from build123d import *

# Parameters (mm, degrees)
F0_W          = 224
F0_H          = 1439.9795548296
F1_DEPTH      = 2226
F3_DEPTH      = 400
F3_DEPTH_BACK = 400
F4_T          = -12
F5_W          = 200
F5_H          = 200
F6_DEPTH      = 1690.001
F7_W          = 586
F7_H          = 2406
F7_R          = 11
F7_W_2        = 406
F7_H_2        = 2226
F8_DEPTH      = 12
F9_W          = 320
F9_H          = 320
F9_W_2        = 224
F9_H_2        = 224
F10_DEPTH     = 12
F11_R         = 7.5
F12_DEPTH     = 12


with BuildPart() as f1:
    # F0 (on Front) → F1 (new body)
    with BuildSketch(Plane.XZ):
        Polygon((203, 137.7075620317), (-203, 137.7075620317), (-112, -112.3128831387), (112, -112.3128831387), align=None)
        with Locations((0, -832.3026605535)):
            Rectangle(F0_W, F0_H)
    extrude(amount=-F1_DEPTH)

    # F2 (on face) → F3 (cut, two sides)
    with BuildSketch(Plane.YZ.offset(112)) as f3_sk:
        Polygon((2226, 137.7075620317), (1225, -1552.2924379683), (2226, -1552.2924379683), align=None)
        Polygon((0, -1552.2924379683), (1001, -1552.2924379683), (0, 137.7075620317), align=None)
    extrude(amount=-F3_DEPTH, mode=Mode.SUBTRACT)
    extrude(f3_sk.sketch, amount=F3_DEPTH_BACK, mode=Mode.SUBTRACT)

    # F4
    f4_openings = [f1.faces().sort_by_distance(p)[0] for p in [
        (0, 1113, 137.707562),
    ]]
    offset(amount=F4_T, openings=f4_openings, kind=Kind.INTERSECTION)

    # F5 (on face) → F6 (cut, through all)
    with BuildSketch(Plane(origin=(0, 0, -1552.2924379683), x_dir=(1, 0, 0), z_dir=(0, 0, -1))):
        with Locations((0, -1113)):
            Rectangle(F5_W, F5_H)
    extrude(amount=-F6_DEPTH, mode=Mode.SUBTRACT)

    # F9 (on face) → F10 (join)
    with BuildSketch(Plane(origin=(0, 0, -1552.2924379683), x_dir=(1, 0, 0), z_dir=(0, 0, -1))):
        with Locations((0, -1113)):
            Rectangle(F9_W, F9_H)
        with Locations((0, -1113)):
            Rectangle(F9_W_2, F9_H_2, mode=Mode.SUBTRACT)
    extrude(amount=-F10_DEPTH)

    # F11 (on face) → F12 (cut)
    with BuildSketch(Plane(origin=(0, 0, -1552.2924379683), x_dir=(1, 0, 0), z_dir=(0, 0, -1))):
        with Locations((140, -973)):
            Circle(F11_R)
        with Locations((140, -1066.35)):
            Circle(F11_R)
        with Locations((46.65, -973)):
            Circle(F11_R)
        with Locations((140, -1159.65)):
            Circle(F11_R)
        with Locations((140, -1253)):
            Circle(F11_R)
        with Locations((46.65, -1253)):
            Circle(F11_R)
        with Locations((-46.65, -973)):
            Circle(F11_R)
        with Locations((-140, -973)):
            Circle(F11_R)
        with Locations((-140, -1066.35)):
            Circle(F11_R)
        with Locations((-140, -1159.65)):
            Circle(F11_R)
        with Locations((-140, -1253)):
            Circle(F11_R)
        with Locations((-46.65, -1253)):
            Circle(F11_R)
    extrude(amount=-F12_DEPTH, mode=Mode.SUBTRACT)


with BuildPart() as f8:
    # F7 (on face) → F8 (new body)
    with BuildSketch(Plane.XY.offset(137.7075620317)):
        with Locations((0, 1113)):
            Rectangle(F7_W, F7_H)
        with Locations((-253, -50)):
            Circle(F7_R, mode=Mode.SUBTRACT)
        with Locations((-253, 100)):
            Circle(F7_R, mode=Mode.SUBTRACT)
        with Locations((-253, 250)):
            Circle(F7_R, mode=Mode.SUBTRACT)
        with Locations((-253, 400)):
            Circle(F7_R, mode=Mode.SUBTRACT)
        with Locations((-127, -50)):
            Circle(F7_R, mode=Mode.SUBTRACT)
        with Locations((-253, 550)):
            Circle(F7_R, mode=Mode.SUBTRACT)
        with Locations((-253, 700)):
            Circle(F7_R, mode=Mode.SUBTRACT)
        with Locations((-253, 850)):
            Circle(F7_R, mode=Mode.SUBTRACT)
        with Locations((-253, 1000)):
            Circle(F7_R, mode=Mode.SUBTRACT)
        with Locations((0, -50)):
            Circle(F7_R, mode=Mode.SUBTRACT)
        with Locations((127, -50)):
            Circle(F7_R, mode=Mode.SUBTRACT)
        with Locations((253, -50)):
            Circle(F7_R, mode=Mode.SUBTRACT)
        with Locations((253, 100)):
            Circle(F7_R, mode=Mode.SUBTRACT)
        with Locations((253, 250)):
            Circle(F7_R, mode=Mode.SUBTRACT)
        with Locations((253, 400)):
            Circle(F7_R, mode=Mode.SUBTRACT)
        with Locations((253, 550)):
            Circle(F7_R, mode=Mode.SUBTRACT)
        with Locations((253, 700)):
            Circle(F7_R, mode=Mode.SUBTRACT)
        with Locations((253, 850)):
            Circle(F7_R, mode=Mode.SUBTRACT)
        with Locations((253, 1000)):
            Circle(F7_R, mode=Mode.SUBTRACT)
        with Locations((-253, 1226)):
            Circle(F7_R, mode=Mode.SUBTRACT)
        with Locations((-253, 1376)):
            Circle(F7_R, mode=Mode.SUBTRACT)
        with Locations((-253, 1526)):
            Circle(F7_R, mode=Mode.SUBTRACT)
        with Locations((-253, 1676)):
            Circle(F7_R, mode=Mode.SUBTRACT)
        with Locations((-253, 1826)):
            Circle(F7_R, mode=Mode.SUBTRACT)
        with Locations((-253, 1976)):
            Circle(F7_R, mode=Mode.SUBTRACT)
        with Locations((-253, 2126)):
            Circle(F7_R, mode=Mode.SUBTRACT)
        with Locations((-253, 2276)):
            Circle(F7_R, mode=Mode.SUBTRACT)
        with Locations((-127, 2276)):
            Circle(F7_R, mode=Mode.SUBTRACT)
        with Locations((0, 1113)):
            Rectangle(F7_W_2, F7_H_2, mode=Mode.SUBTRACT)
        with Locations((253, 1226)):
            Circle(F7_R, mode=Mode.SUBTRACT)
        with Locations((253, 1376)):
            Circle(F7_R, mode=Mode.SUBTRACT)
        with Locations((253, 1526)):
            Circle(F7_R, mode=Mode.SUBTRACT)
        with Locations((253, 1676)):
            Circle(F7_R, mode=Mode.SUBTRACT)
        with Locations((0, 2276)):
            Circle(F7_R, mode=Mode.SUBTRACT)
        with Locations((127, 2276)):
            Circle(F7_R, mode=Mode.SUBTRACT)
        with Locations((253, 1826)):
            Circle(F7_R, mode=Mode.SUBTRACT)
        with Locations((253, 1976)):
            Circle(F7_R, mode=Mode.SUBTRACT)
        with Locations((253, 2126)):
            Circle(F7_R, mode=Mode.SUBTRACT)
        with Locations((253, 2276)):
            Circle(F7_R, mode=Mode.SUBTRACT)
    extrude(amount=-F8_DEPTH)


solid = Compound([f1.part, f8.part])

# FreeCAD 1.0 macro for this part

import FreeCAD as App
import Part
import Sketcher
from FreeCAD import Vector
Q = App.Units.Quantity


def faces_at(feature, points):
    """Names of the faces that lie closest to the given points."""
    faces = feature.Shape.Faces
    near = lambda p: min(range(len(faces)), key=lambda i: faces[i].distToShape(Part.Vertex(*p))[0])
    return sorted({f"Face{near(p) + 1}" for p in points})

doc = App.newDocument("Part")
body = doc.addObject("PartDesign::Body", "Body")

# Sketch on XZ plane
sketch1 = doc.addObject("Sketcher::SketchObject", "Sketch")
body.addObject(sketch1)
sketch1.AttachmentSupport = (doc.XZ_Plane, [""])
sketch1.MapMode = "FlatFace"
sketch1.addGeometry(Part.LineSegment(Vector(203, 138, 0), Vector(-203, 138, 0)), False)
sketch1.addGeometry(Part.LineSegment(Vector(-203, 138, 0), Vector(-112, -112, 0)), False)
sketch1.addGeometry(Part.LineSegment(Vector(-112, -112, 0), Vector(-112, -1552, 0)), False)
sketch1.addGeometry(Part.LineSegment(Vector(-112, -1552, 0), Vector(112, -1552, 0)), False)
sketch1.addGeometry(Part.LineSegment(Vector(112, -1552, 0), Vector(112, -112, 0)), False)
sketch1.addGeometry(Part.LineSegment(Vector(112, -112, 0), Vector(203, 138, 0)), False)
sketch1.addConstraint(Sketcher.Constraint("Coincident", 0, 2, 1, 1))
sketch1.addConstraint(Sketcher.Constraint("Coincident", 1, 2, 2, 1))
sketch1.addConstraint(Sketcher.Constraint("Coincident", 2, 2, 3, 1))
sketch1.addConstraint(Sketcher.Constraint("Coincident", 3, 2, 4, 1))
sketch1.addConstraint(Sketcher.Constraint("Coincident", 4, 2, 5, 1))
sketch1.addConstraint(Sketcher.Constraint("Coincident", 5, 2, 0, 1))
sketch1.addConstraint(Sketcher.Constraint("Horizontal", 0))
sketch1.addConstraint(Sketcher.Constraint("Vertical", 2))
sketch1.addConstraint(Sketcher.Constraint("Horizontal", 3))
sketch1.addConstraint(Sketcher.Constraint("Vertical", 4))
sketch1.addConstraint(Sketcher.Constraint("Symmetric", 1, 2, 4, 2, -2))
sketch1.addConstraint(Sketcher.Constraint("Equal", 1, 5))
sketch1.addConstraint(Sketcher.Constraint("DistanceX", 0, 2, 0, 1, 406.0))
sketch1.addConstraint(Sketcher.Constraint("DistanceX", 3, 1, 3, 2, 224.0))
sketch1.addConstraint(Sketcher.Constraint("Angle", 1, Q("-70 deg")))
sketch1.addConstraint(Sketcher.Constraint("DistanceY", 2, 2, 0, 2, 1690.0))
sketch1.addConstraint(Sketcher.Constraint("DistanceY", -1, 1, 0, 2, 137.707562))
pad1 = doc.addObject("PartDesign::Pad", "Pad")
body.addObject(pad1)
pad1.Profile = sketch1
pad1.Length = 2226
pad1.Reversed = True

# Sketch on YZ plane
sketch2 = doc.addObject("Sketcher::SketchObject", "Sketch001")
body.addObject(sketch2)
sketch2.AttachmentSupport = (doc.YZ_Plane, [""])
sketch2.MapMode = "FlatFace"
sketch2.AttachmentOffset = App.Placement(Vector(0, 0, 112), App.Rotation())
sketch2.addGeometry(Part.LineSegment(Vector(2226, 138, 0), Vector(1225, -1552, 0)), False)
sketch2.addGeometry(Part.LineSegment(Vector(1225, -1552, 0), Vector(2226, -1552, 0)), False)
sketch2.addGeometry(Part.LineSegment(Vector(2226, -1552, 0), Vector(2226, 138, 0)), False)
sketch2.addGeometry(Part.LineSegment(Vector(0, -1552, 0), Vector(1001, -1552, 0)), False)
sketch2.addGeometry(Part.LineSegment(Vector(1001, -1552, 0), Vector(0, 138, 0)), False)
sketch2.addGeometry(Part.LineSegment(Vector(0, 138, 0), Vector(0, -1552, 0)), False)
sketch2.addConstraint(Sketcher.Constraint("Coincident", 0, 2, 1, 1))
sketch2.addConstraint(Sketcher.Constraint("Coincident", 1, 2, 2, 1))
sketch2.addConstraint(Sketcher.Constraint("Coincident", 2, 2, 0, 1))
sketch2.addConstraint(Sketcher.Constraint("Coincident", 3, 2, 4, 1))
sketch2.addConstraint(Sketcher.Constraint("Coincident", 4, 2, 5, 1))
sketch2.addConstraint(Sketcher.Constraint("Coincident", 5, 2, 3, 1))
sketch2.addConstraint(Sketcher.Constraint("Horizontal", 1))
sketch2.addConstraint(Sketcher.Constraint("Vertical", 2))
sketch2.addConstraint(Sketcher.Constraint("Horizontal", 3))
sketch2.addConstraint(Sketcher.Constraint("Vertical", 5))
sketch2.addConstraint(Sketcher.Constraint("PointOnObject", 4, 2, -2))
sketch2.addConstraint(Sketcher.Constraint("Horizontal", 1, 2, 3, 2))
sketch2.addConstraint(Sketcher.Constraint("Horizontal", 2, 2, 4, 2))
sketch2.addConstraint(Sketcher.Constraint("Equal", 1, 3))
sketch2.addConstraint(Sketcher.Constraint("DistanceX", 1, 1, 1, 2, 1001.0))
sketch2.addConstraint(Sketcher.Constraint("DistanceY", 2, 1, 2, 2, 1690.0))
sketch2.addConstraint(Sketcher.Constraint("DistanceX", -1, 1, 0, 2, 1225.0))
sketch2.addConstraint(Sketcher.Constraint("DistanceY", 0, 2, -1, 1, 1552.292438))
pocket1 = doc.addObject("PartDesign::Pocket", "Pocket")
body.addObject(pocket1)
pocket1.Profile = sketch2
pocket1.Type = "ThroughAll"
pocket1.Midplane = True
doc.recompute()

thickness = doc.addObject("PartDesign::Thickness", "Thickness")
body.addObject(thickness)
thickness.Base = (pocket1, faces_at(pocket1, [(0, 1113, 137.708)]))
thickness.Value = 12
thickness.Reversed = True
thickness.Join = "Intersection"

# Sketch on XY plane
sketch3 = doc.addObject("Sketcher::SketchObject", "Sketch002")
body.addObject(sketch3)
sketch3.AttachmentSupport = (doc.XY_Plane, [""])
sketch3.MapMode = "FlatFace"
sketch3.AttachmentOffset = App.Placement(Vector(0, 0, -1552.292438), App.Rotation())
sketch3.addGeometry(Part.LineSegment(Vector(-100, 1013, 0), Vector(-100, 1213, 0)), False)
sketch3.addGeometry(Part.LineSegment(Vector(-100, 1213, 0), Vector(100, 1213, 0)), False)
sketch3.addGeometry(Part.LineSegment(Vector(100, 1213, 0), Vector(100, 1013, 0)), False)
sketch3.addGeometry(Part.LineSegment(Vector(100, 1013, 0), Vector(-100, 1013, 0)), False)
sketch3.addConstraint(Sketcher.Constraint("Coincident", 0, 2, 1, 1))
sketch3.addConstraint(Sketcher.Constraint("Coincident", 1, 2, 2, 1))
sketch3.addConstraint(Sketcher.Constraint("Coincident", 2, 2, 3, 1))
sketch3.addConstraint(Sketcher.Constraint("Coincident", 3, 2, 0, 1))
sketch3.addConstraint(Sketcher.Constraint("Vertical", 0))
sketch3.addConstraint(Sketcher.Constraint("Horizontal", 1))
sketch3.addConstraint(Sketcher.Constraint("Vertical", 2))
sketch3.addConstraint(Sketcher.Constraint("Horizontal", 3))
sketch3.addConstraint(Sketcher.Constraint("Equal", 3, 0))
sketch3.addConstraint(Sketcher.Constraint("DistanceX", 1, 1, 1, 2, 200.0))
sketch3.addConstraint(Sketcher.Constraint("DistanceX", 0, 2, -1, 1, 100.0))
sketch3.addConstraint(Sketcher.Constraint("DistanceY", -1, 1, 0, 2, 1213.0))
pocket2 = doc.addObject("PartDesign::Pocket", "Pocket001")
body.addObject(pocket2)
pocket2.Profile = sketch3
pocket2.Type = "ThroughAll"
pocket2.Reversed = True

# Sketch on XY plane
sketch4 = doc.addObject("Sketcher::SketchObject", "Sketch003")
body.addObject(sketch4)
sketch4.AttachmentSupport = (doc.XY_Plane, [""])
sketch4.MapMode = "FlatFace"
sketch4.AttachmentOffset = App.Placement(Vector(0, 0, -1552.292438), App.Rotation())
sketch4.addGeometry(Part.LineSegment(Vector(-160, 953, 0), Vector(-160, 1273, 0)), False)
sketch4.addGeometry(Part.LineSegment(Vector(-160, 1273, 0), Vector(160, 1273, 0)), False)
sketch4.addGeometry(Part.LineSegment(Vector(160, 1273, 0), Vector(160, 953, 0)), False)
sketch4.addGeometry(Part.LineSegment(Vector(160, 953, 0), Vector(-160, 953, 0)), False)
sketch4.addGeometry(Part.LineSegment(Vector(112, 1225, 0), Vector(-112, 1225, 0)), False)
sketch4.addGeometry(Part.LineSegment(Vector(-112, 1225, 0), Vector(-112, 1001, 0)), False)
sketch4.addGeometry(Part.LineSegment(Vector(-112, 1001, 0), Vector(112, 1001, 0)), False)
sketch4.addGeometry(Part.LineSegment(Vector(112, 1001, 0), Vector(112, 1225, 0)), False)
sketch4.addConstraint(Sketcher.Constraint("Coincident", 0, 2, 1, 1))
sketch4.addConstraint(Sketcher.Constraint("Coincident", 1, 2, 2, 1))
sketch4.addConstraint(Sketcher.Constraint("Coincident", 2, 2, 3, 1))
sketch4.addConstraint(Sketcher.Constraint("Coincident", 3, 2, 0, 1))
sketch4.addConstraint(Sketcher.Constraint("Coincident", 4, 2, 5, 1))
sketch4.addConstraint(Sketcher.Constraint("Coincident", 5, 2, 6, 1))
sketch4.addConstraint(Sketcher.Constraint("Coincident", 6, 2, 7, 1))
sketch4.addConstraint(Sketcher.Constraint("Coincident", 7, 2, 4, 1))
sketch4.addConstraint(Sketcher.Constraint("Vertical", 0))
sketch4.addConstraint(Sketcher.Constraint("Horizontal", 1))
sketch4.addConstraint(Sketcher.Constraint("Vertical", 2))
sketch4.addConstraint(Sketcher.Constraint("Horizontal", 3))
sketch4.addConstraint(Sketcher.Constraint("Horizontal", 4))
sketch4.addConstraint(Sketcher.Constraint("Vertical", 5))
sketch4.addConstraint(Sketcher.Constraint("Horizontal", 6))
sketch4.addConstraint(Sketcher.Constraint("Vertical", 7))
sketch4.addConstraint(Sketcher.Constraint("Equal", 3, 0))
sketch4.addConstraint(Sketcher.Constraint("Equal", 6, 5))
sketch4.addConstraint(Sketcher.Constraint("DistanceX", 1, 1, 1, 2, 320.0))
sketch4.addConstraint(Sketcher.Constraint("DistanceX", 4, 2, 4, 1, 224.0))
sketch4.addConstraint(Sketcher.Constraint("DistanceX", 0, 2, -1, 1, 160.0))
sketch4.addConstraint(Sketcher.Constraint("DistanceY", -1, 1, 0, 2, 1273.0))
sketch4.addConstraint(Sketcher.Constraint("DistanceX", 4, 2, -1, 1, 112.0))
sketch4.addConstraint(Sketcher.Constraint("DistanceY", -1, 1, 4, 2, 1225.0))
pad2 = doc.addObject("PartDesign::Pad", "Pad001")
body.addObject(pad2)
pad2.Profile = sketch4
pad2.Length = 12

# Sketch on XY plane
sketch5 = doc.addObject("Sketcher::SketchObject", "Sketch004")
body.addObject(sketch5)
sketch5.AttachmentSupport = (doc.XY_Plane, [""])
sketch5.MapMode = "FlatFace"
sketch5.AttachmentOffset = App.Placement(Vector(0, 0, -1552.292438), App.Rotation())
sketch5.addGeometry(Part.Circle(Vector(140, 973, 0), Vector(0, 0, 1), 8), False)
sketch5.addGeometry(Part.Circle(Vector(140, 1066, 0), Vector(0, 0, 1), 8), False)
sketch5.addGeometry(Part.Circle(Vector(47, 973, 0), Vector(0, 0, 1), 8), False)
sketch5.addGeometry(Part.Circle(Vector(140, 1160, 0), Vector(0, 0, 1), 8), False)
sketch5.addGeometry(Part.Circle(Vector(140, 1253, 0), Vector(0, 0, 1), 8), False)
sketch5.addGeometry(Part.Circle(Vector(47, 1253, 0), Vector(0, 0, 1), 8), False)
sketch5.addGeometry(Part.Circle(Vector(-47, 973, 0), Vector(0, 0, 1), 8), False)
sketch5.addGeometry(Part.Circle(Vector(-140, 973, 0), Vector(0, 0, 1), 8), False)
sketch5.addGeometry(Part.Circle(Vector(-140, 1066, 0), Vector(0, 0, 1), 8), False)
sketch5.addGeometry(Part.Circle(Vector(-140, 1160, 0), Vector(0, 0, 1), 8), False)
sketch5.addGeometry(Part.Circle(Vector(-140, 1253, 0), Vector(0, 0, 1), 8), False)
sketch5.addGeometry(Part.Circle(Vector(-47, 1253, 0), Vector(0, 0, 1), 8), False)
sketch5.addConstraint(Sketcher.Constraint("Equal", 0, 1))
sketch5.addConstraint(Sketcher.Constraint("Equal", 1, 2))
sketch5.addConstraint(Sketcher.Constraint("Equal", 2, 3))
sketch5.addConstraint(Sketcher.Constraint("Equal", 3, 4))
sketch5.addConstraint(Sketcher.Constraint("Equal", 4, 5))
sketch5.addConstraint(Sketcher.Constraint("Equal", 5, 6))
sketch5.addConstraint(Sketcher.Constraint("Equal", 6, 7))
sketch5.addConstraint(Sketcher.Constraint("Equal", 7, 8))
sketch5.addConstraint(Sketcher.Constraint("Equal", 8, 9))
sketch5.addConstraint(Sketcher.Constraint("Equal", 9, 10))
sketch5.addConstraint(Sketcher.Constraint("Equal", 10, 11))
sketch5.addConstraint(Sketcher.Constraint("Symmetric", 2, 3, 6, 3, -2))
sketch5.addConstraint(Sketcher.Constraint("Symmetric", 0, 3, 7, 3, -2))
sketch5.addConstraint(Sketcher.Constraint("Symmetric", 1, 3, 8, 3, -2))
sketch5.addConstraint(Sketcher.Constraint("Symmetric", 3, 3, 9, 3, -2))
sketch5.addConstraint(Sketcher.Constraint("Symmetric", 4, 3, 10, 3, -2))
sketch5.addConstraint(Sketcher.Constraint("Symmetric", 5, 3, 11, 3, -2))
sketch5.addConstraint(Sketcher.Constraint("Horizontal", 0, 3, 2, 3))
sketch5.addConstraint(Sketcher.Constraint("Horizontal", 4, 3, 5, 3))
sketch5.addConstraint(Sketcher.Constraint("Vertical", 0, 3, 1, 3))
sketch5.addConstraint(Sketcher.Constraint("Vertical", 1, 3, 3, 3))
sketch5.addConstraint(Sketcher.Constraint("Vertical", 3, 3, 4, 3))
sketch5.addConstraint(Sketcher.Constraint("Vertical", 2, 3, 5, 3))
sketch5.addConstraint(Sketcher.Constraint("Diameter", 0, 15.0))
sketch5.addConstraint(Sketcher.Constraint("DistanceX", -1, 1, 0, 3, 140.0))
sketch5.addConstraint(Sketcher.Constraint("DistanceY", -1, 1, 0, 3, 973.0))
sketch5.addConstraint(Sketcher.Constraint("DistanceY", -1, 1, 4, 3, 1253.0))
sketch5.addConstraint(Sketcher.Constraint("DistanceY", 1, 3, 3, 3, 93.3))
sketch5.addConstraint(Sketcher.Constraint("DistanceX", 6, 3, 2, 3, 93.3))
sketch5.addConstraint(Sketcher.Constraint("DistanceY", -1, 1, 1, 3, 1066.35))
pocket3 = doc.addObject("PartDesign::Pocket", "Pocket002")
body.addObject(pocket3)
pocket3.Profile = sketch5
pocket3.Length = 12
pocket3.Reversed = True
body2 = doc.addObject("PartDesign::Body", "Body001")

# Sketch on XY plane
sketch6 = doc.addObject("Sketcher::SketchObject", "Sketch005")
body2.addObject(sketch6)
sketch6.AttachmentSupport = (doc.getObject("XY_Plane001"), [""])
sketch6.MapMode = "FlatFace"
sketch6.AttachmentOffset = App.Placement(Vector(0, 0, 137.707562), App.Rotation())
sketch6.addGeometry(Part.LineSegment(Vector(-293, 2316, 0), Vector(-293, -90, 0)), False)
sketch6.addGeometry(Part.LineSegment(Vector(-293, -90, 0), Vector(293, -90, 0)), False)
sketch6.addGeometry(Part.LineSegment(Vector(293, -90, 0), Vector(293, 2316, 0)), False)
sketch6.addGeometry(Part.LineSegment(Vector(293, 2316, 0), Vector(-293, 2316, 0)), False)
sketch6.addGeometry(Part.Circle(Vector(-253, -50, 0), Vector(0, 0, 1), 11), False)
sketch6.addGeometry(Part.Circle(Vector(-253, 100, 0), Vector(0, 0, 1), 11), False)
sketch6.addGeometry(Part.Circle(Vector(-253, 250, 0), Vector(0, 0, 1), 11), False)
sketch6.addGeometry(Part.Circle(Vector(-253, 400, 0), Vector(0, 0, 1), 11), False)
sketch6.addGeometry(Part.Circle(Vector(-127, -50, 0), Vector(0, 0, 1), 11), False)
sketch6.addGeometry(Part.Circle(Vector(-253, 550, 0), Vector(0, 0, 1), 11), False)
sketch6.addGeometry(Part.Circle(Vector(-253, 700, 0), Vector(0, 0, 1), 11), False)
sketch6.addGeometry(Part.Circle(Vector(-253, 850, 0), Vector(0, 0, 1), 11), False)
sketch6.addGeometry(Part.Circle(Vector(-253, 1000, 0), Vector(0, 0, 1), 11), False)
sketch6.addGeometry(Part.Circle(Vector(0, -50, 0), Vector(0, 0, 1), 11), False)
sketch6.addGeometry(Part.Circle(Vector(127, -50, 0), Vector(0, 0, 1), 11), False)
sketch6.addGeometry(Part.Circle(Vector(253, -50, 0), Vector(0, 0, 1), 11), False)
sketch6.addGeometry(Part.Circle(Vector(253, 100, 0), Vector(0, 0, 1), 11), False)
sketch6.addGeometry(Part.Circle(Vector(253, 250, 0), Vector(0, 0, 1), 11), False)
sketch6.addGeometry(Part.Circle(Vector(253, 400, 0), Vector(0, 0, 1), 11), False)
sketch6.addGeometry(Part.Circle(Vector(253, 550, 0), Vector(0, 0, 1), 11), False)
sketch6.addGeometry(Part.Circle(Vector(253, 700, 0), Vector(0, 0, 1), 11), False)
sketch6.addGeometry(Part.Circle(Vector(253, 850, 0), Vector(0, 0, 1), 11), False)
sketch6.addGeometry(Part.Circle(Vector(253, 1000, 0), Vector(0, 0, 1), 11), False)
sketch6.addGeometry(Part.Circle(Vector(-253, 1226, 0), Vector(0, 0, 1), 11), False)
sketch6.addGeometry(Part.Circle(Vector(-253, 1376, 0), Vector(0, 0, 1), 11), False)
sketch6.addGeometry(Part.Circle(Vector(-253, 1526, 0), Vector(0, 0, 1), 11), False)
sketch6.addGeometry(Part.Circle(Vector(-253, 1676, 0), Vector(0, 0, 1), 11), False)
sketch6.addGeometry(Part.Circle(Vector(-253, 1826, 0), Vector(0, 0, 1), 11), False)
sketch6.addGeometry(Part.Circle(Vector(-253, 1976, 0), Vector(0, 0, 1), 11), False)
sketch6.addGeometry(Part.Circle(Vector(-253, 2126, 0), Vector(0, 0, 1), 11), False)
sketch6.addGeometry(Part.Circle(Vector(-253, 2276, 0), Vector(0, 0, 1), 11), False)
sketch6.addGeometry(Part.Circle(Vector(-127, 2276, 0), Vector(0, 0, 1), 11), False)
sketch6.addGeometry(Part.LineSegment(Vector(203, 0, 0), Vector(-203, 0, 0)), False)
sketch6.addGeometry(Part.LineSegment(Vector(-203, 0, 0), Vector(-203, 2226, 0)), False)
sketch6.addGeometry(Part.LineSegment(Vector(-203, 2226, 0), Vector(203, 2226, 0)), False)
sketch6.addGeometry(Part.LineSegment(Vector(203, 2226, 0), Vector(203, 0, 0)), False)
sketch6.addGeometry(Part.Circle(Vector(253, 1226, 0), Vector(0, 0, 1), 11), False)
sketch6.addGeometry(Part.Circle(Vector(253, 1376, 0), Vector(0, 0, 1), 11), False)
sketch6.addGeometry(Part.Circle(Vector(253, 1526, 0), Vector(0, 0, 1), 11), False)
sketch6.addGeometry(Part.Circle(Vector(253, 1676, 0), Vector(0, 0, 1), 11), False)
sketch6.addGeometry(Part.Circle(Vector(0, 2276, 0), Vector(0, 0, 1), 11), False)
sketch6.addGeometry(Part.Circle(Vector(127, 2276, 0), Vector(0, 0, 1), 11), False)
sketch6.addGeometry(Part.Circle(Vector(253, 1826, 0), Vector(0, 0, 1), 11), False)
sketch6.addGeometry(Part.Circle(Vector(253, 1976, 0), Vector(0, 0, 1), 11), False)
sketch6.addGeometry(Part.Circle(Vector(253, 2126, 0), Vector(0, 0, 1), 11), False)
sketch6.addGeometry(Part.Circle(Vector(253, 2276, 0), Vector(0, 0, 1), 11), False)
sketch6.addConstraint(Sketcher.Constraint("Coincident", 0, 2, 1, 1))
sketch6.addConstraint(Sketcher.Constraint("Coincident", 1, 2, 2, 1))
sketch6.addConstraint(Sketcher.Constraint("Coincident", 2, 2, 3, 1))
sketch6.addConstraint(Sketcher.Constraint("Coincident", 3, 2, 0, 1))
sketch6.addConstraint(Sketcher.Constraint("Coincident", 32, 2, 33, 1))
sketch6.addConstraint(Sketcher.Constraint("Coincident", 33, 2, 34, 1))
sketch6.addConstraint(Sketcher.Constraint("Coincident", 34, 2, 35, 1))
sketch6.addConstraint(Sketcher.Constraint("Coincident", 35, 2, 32, 1))
sketch6.addConstraint(Sketcher.Constraint("Vertical", 0))
sketch6.addConstraint(Sketcher.Constraint("Horizontal", 1))
sketch6.addConstraint(Sketcher.Constraint("Vertical", 2))
sketch6.addConstraint(Sketcher.Constraint("Horizontal", 3))
sketch6.addConstraint(Sketcher.Constraint("Horizontal", 32))
sketch6.addConstraint(Sketcher.Constraint("Vertical", 33))
sketch6.addConstraint(Sketcher.Constraint("Horizontal", 34))
sketch6.addConstraint(Sketcher.Constraint("Vertical", 35))
sketch6.addConstraint(Sketcher.Constraint("Equal", 4, 5))
sketch6.addConstraint(Sketcher.Constraint("Equal", 5, 6))
sketch6.addConstraint(Sketcher.Constraint("Equal", 6, 7))
sketch6.addConstraint(Sketcher.Constraint("Equal", 7, 8))
sketch6.addConstraint(Sketcher.Constraint("Equal", 8, 9))
sketch6.addConstraint(Sketcher.Constraint("Equal", 9, 10))
sketch6.addConstraint(Sketcher.Constraint("Equal", 10, 11))
sketch6.addConstraint(Sketcher.Constraint("Equal", 11, 12))
sketch6.addConstraint(Sketcher.Constraint("Equal", 12, 13))
sketch6.addConstraint(Sketcher.Constraint("Equal", 13, 14))
sketch6.addConstraint(Sketcher.Constraint("Equal", 14, 15))
sketch6.addConstraint(Sketcher.Constraint("Equal", 15, 16))
sketch6.addConstraint(Sketcher.Constraint("Equal", 16, 17))
sketch6.addConstraint(Sketcher.Constraint("Equal", 17, 18))
sketch6.addConstraint(Sketcher.Constraint("Equal", 18, 19))
sketch6.addConstraint(Sketcher.Constraint("Equal", 19, 20))
sketch6.addConstraint(Sketcher.Constraint("Equal", 20, 21))
sketch6.addConstraint(Sketcher.Constraint("Equal", 21, 22))
sketch6.addConstraint(Sketcher.Constraint("Equal", 22, 23))
sketch6.addConstraint(Sketcher.Constraint("Equal", 23, 24))
sketch6.addConstraint(Sketcher.Constraint("Equal", 24, 25))
sketch6.addConstraint(Sketcher.Constraint("Equal", 25, 26))
sketch6.addConstraint(Sketcher.Constraint("Equal", 26, 27))
sketch6.addConstraint(Sketcher.Constraint("Equal", 27, 28))
sketch6.addConstraint(Sketcher.Constraint("Equal", 28, 29))
sketch6.addConstraint(Sketcher.Constraint("Equal", 29, 30))
sketch6.addConstraint(Sketcher.Constraint("Equal", 30, 31))
sketch6.addConstraint(Sketcher.Constraint("Equal", 31, 36))
sketch6.addConstraint(Sketcher.Constraint("Equal", 36, 37))
sketch6.addConstraint(Sketcher.Constraint("Equal", 37, 38))
sketch6.addConstraint(Sketcher.Constraint("Equal", 38, 39))
sketch6.addConstraint(Sketcher.Constraint("Equal", 39, 40))
sketch6.addConstraint(Sketcher.Constraint("Equal", 40, 41))
sketch6.addConstraint(Sketcher.Constraint("Equal", 41, 42))
sketch6.addConstraint(Sketcher.Constraint("Equal", 42, 43))
sketch6.addConstraint(Sketcher.Constraint("Equal", 43, 44))
sketch6.addConstraint(Sketcher.Constraint("Equal", 44, 45))
sketch6.addConstraint(Sketcher.Constraint("Symmetric", 32, 2, 35, 2, -1, 1))
sketch6.addConstraint(Sketcher.Constraint("Symmetric", 8, 3, 14, 3, -2))
sketch6.addConstraint(Sketcher.Constraint("Symmetric", 4, 3, 15, 3, -2))
sketch6.addConstraint(Sketcher.Constraint("Symmetric", 5, 3, 16, 3, -2))
sketch6.addConstraint(Sketcher.Constraint("Symmetric", 6, 3, 17, 3, -2))
sketch6.addConstraint(Sketcher.Constraint("Symmetric", 7, 3, 18, 3, -2))
sketch6.addConstraint(Sketcher.Constraint("Symmetric", 9, 3, 19, 3, -2))
sketch6.addConstraint(Sketcher.Constraint("Symmetric", 10, 3, 20, 3, -2))
sketch6.addConstraint(Sketcher.Constraint("Symmetric", 11, 3, 21, 3, -2))
sketch6.addConstraint(Sketcher.Constraint("Symmetric", 12, 3, 22, 3, -2))
sketch6.addConstraint(Sketcher.Constraint("Symmetric", 23, 3, 36, 3, -2))
sketch6.addConstraint(Sketcher.Constraint("Symmetric", 24, 3, 37, 3, -2))
sketch6.addConstraint(Sketcher.Constraint("Symmetric", 25, 3, 38, 3, -2))
sketch6.addConstraint(Sketcher.Constraint("Symmetric", 26, 3, 39, 3, -2))
sketch6.addConstraint(Sketcher.Constraint("Symmetric", 31, 3, 41, 3, -2))
sketch6.addConstraint(Sketcher.Constraint("Symmetric", 27, 3, 42, 3, -2))
sketch6.addConstraint(Sketcher.Constraint("Symmetric", 28, 3, 43, 3, -2))
sketch6.addConstraint(Sketcher.Constraint("Symmetric", 29, 3, 44, 3, -2))
sketch6.addConstraint(Sketcher.Constraint("Symmetric", 30, 3, 45, 3, -2))
sketch6.addConstraint(Sketcher.Constraint("PointOnObject", 13, 3, -2))
sketch6.addConstraint(Sketcher.Constraint("PointOnObject", 40, 3, -2))
sketch6.addConstraint(Sketcher.Constraint("Horizontal", 4, 3, 8, 3))
sketch6.addConstraint(Sketcher.Constraint("Horizontal", 8, 3, 13, 3))
sketch6.addConstraint(Sketcher.Constraint("Horizontal", 30, 3, 31, 3))
sketch6.addConstraint(Sketcher.Constraint("Horizontal", 31, 3, 40, 3))
sketch6.addConstraint(Sketcher.Constraint("Vertical", 4, 3, 5, 3))
sketch6.addConstraint(Sketcher.Constraint("Vertical", 5, 3, 6, 3))
sketch6.addConstraint(Sketcher.Constraint("Vertical", 6, 3, 7, 3))
sketch6.addConstraint(Sketcher.Constraint("Vertical", 7, 3, 9, 3))
sketch6.addConstraint(Sketcher.Constraint("Vertical", 9, 3, 10, 3))
sketch6.addConstraint(Sketcher.Constraint("Vertical", 10, 3, 11, 3))
sketch6.addConstraint(Sketcher.Constraint("Vertical", 11, 3, 12, 3))
sketch6.addConstraint(Sketcher.Constraint("Vertical", 12, 3, 23, 3))
sketch6.addConstraint(Sketcher.Constraint("Vertical", 23, 3, 24, 3))
sketch6.addConstraint(Sketcher.Constraint("Vertical", 24, 3, 25, 3))
sketch6.addConstraint(Sketcher.Constraint("Vertical", 25, 3, 26, 3))
sketch6.addConstraint(Sketcher.Constraint("Vertical", 26, 3, 27, 3))
sketch6.addConstraint(Sketcher.Constraint("Vertical", 27, 3, 28, 3))
sketch6.addConstraint(Sketcher.Constraint("Vertical", 28, 3, 29, 3))
sketch6.addConstraint(Sketcher.Constraint("Vertical", 29, 3, 30, 3))
sketch6.addConstraint(Sketcher.Constraint("Vertical", 8, 3, 31, 3))
sketch6.addConstraint(Sketcher.Constraint("Diameter", 4, 22.0))
sketch6.addConstraint(Sketcher.Constraint("DistanceX", 1, 1, 1, 2, 586.0))
sketch6.addConstraint(Sketcher.Constraint("DistanceX", 32, 2, 32, 1, 406.0))
sketch6.addConstraint(Sketcher.Constraint("DistanceY", 0, 2, 0, 1, 2406.0))
sketch6.addConstraint(Sketcher.Constraint("DistanceY", 33, 1, 33, 2, 2226.0))
sketch6.addConstraint(Sketcher.Constraint("DistanceX", 4, 3, -1, 1, 253.0))
sketch6.addConstraint(Sketcher.Constraint("DistanceY", 4, 3, -1, 1, 50.0))
sketch6.addConstraint(Sketcher.Constraint("DistanceY", -1, 1, 5, 3, 100.0))
sketch6.addConstraint(Sketcher.Constraint("DistanceY", -1, 1, 6, 3, 250.0))
sketch6.addConstraint(Sketcher.Constraint("DistanceY", -1, 1, 7, 3, 400.0))
sketch6.addConstraint(Sketcher.Constraint("DistanceX", 8, 3, -1, 1, 127.0))
sketch6.addConstraint(Sketcher.Constraint("DistanceY", -1, 1, 9, 3, 550.0))
sketch6.addConstraint(Sketcher.Constraint("DistanceY", -1, 1, 10, 3, 700.0))
sketch6.addConstraint(Sketcher.Constraint("DistanceY", -1, 1, 11, 3, 850.0))
sketch6.addConstraint(Sketcher.Constraint("DistanceY", -1, 1, 12, 3, 1000.0))
sketch6.addConstraint(Sketcher.Constraint("DistanceY", -1, 1, 23, 3, 1226.0))
sketch6.addConstraint(Sketcher.Constraint("DistanceY", -1, 1, 24, 3, 1376.0))
sketch6.addConstraint(Sketcher.Constraint("DistanceY", -1, 1, 25, 3, 1526.0))
sketch6.addConstraint(Sketcher.Constraint("DistanceY", -1, 1, 26, 3, 1676.0))
sketch6.addConstraint(Sketcher.Constraint("DistanceY", -1, 1, 27, 3, 1826.0))
sketch6.addConstraint(Sketcher.Constraint("DistanceY", -1, 1, 28, 3, 1976.0))
sketch6.addConstraint(Sketcher.Constraint("DistanceY", -1, 1, 29, 3, 2126.0))
sketch6.addConstraint(Sketcher.Constraint("DistanceY", -1, 1, 30, 3, 2276.0))
sketch6.addConstraint(Sketcher.Constraint("DistanceX", 0, 2, -1, 1, 293.0))
sketch6.addConstraint(Sketcher.Constraint("DistanceY", 0, 2, -1, 1, 90.0))
pad3 = doc.addObject("PartDesign::Pad", "Pad002")
body2.addObject(pad3)
pad3.Profile = sketch6
pad3.Length = 12
pad3.Reversed = True

doc.recompute()
